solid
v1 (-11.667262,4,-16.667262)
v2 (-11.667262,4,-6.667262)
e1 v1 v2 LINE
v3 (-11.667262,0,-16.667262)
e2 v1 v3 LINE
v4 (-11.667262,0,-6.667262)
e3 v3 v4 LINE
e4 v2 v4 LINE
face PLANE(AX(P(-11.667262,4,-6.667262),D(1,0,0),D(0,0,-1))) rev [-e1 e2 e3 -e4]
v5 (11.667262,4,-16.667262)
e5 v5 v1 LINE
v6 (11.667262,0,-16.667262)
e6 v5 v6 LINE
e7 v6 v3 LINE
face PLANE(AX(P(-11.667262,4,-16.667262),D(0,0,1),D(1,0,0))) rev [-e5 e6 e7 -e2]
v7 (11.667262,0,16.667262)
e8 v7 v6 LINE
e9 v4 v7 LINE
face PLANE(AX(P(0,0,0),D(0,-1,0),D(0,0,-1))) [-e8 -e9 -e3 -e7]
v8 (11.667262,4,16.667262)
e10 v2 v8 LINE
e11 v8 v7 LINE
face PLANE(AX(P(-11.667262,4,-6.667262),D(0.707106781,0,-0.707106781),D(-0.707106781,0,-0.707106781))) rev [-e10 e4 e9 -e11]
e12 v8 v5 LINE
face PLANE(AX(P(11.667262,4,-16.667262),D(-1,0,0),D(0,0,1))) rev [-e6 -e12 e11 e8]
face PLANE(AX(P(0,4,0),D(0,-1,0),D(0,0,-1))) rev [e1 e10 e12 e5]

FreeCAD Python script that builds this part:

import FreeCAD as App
import Part
import Sketcher
Q = App.Units.Quantity

doc = App.newDocument("Part")
body = doc.addObject("PartDesign::Body", "Body")

# Sketch on XZ plane
sketch1 = doc.addObject("Sketcher::SketchObject", "Sketch")
body.addObject(sketch1)
sketch1.AttachmentSupport = (doc.XZ_Plane, [""])
sketch1.MapMode = "FlatFace"
sketch1.addGeometry(Part.LineSegment(App.Vector(-12, -7, 0), App.Vector(12, 17, 0)), False)
sketch1.addGeometry(Part.LineSegment(App.Vector(12, 17, 0), App.Vector(12, -17, 0)), False)
sketch1.addGeometry(Part.LineSegment(App.Vector(12, -17, 0), App.Vector(-12, -17, 0)), False)
sketch1.addGeometry(Part.LineSegment(App.Vector(-12, -17, 0), App.Vector(-12, -7, 0)), False)
sketch1.addConstraint(Sketcher.Constraint("Coincident", 0, 2, 1, 1))
sketch1.addConstraint(Sketcher.Constraint("Coincident", 1, 2, 2, 1))
sketch1.addConstraint(Sketcher.Constraint("Coincident", 2, 2, 3, 1))
sketch1.addConstraint(Sketcher.Constraint("Coincident", 3, 2, 0, 1))
sketch1.addConstraint(Sketcher.Constraint("Vertical", 1))
sketch1.addConstraint(Sketcher.Constraint("Horizontal", 2))
sketch1.addConstraint(Sketcher.Constraint("Vertical", 3))
sketch1.addConstraint(Sketcher.Constraint("Symmetric", 0, 2, 2, 2, -1, 1))
sketch1.addConstraint(Sketcher.Constraint("DistanceY", 3, 1, 3, 2, Q("10 mm")))
sketch1.addConstraint(Sketcher.Constraint("Angle", 0, Q("45 deg")))
sketch1.addConstraint(Sketcher.Constraint("Distance", 0, Q("33 mm")))
pad1 = doc.addObject("PartDesign::Pad", "Pad")
body.addObject(pad1)
pad1.Profile = sketch1
pad1.Length = 4
pad1.Reversed = True

doc.recompute()
